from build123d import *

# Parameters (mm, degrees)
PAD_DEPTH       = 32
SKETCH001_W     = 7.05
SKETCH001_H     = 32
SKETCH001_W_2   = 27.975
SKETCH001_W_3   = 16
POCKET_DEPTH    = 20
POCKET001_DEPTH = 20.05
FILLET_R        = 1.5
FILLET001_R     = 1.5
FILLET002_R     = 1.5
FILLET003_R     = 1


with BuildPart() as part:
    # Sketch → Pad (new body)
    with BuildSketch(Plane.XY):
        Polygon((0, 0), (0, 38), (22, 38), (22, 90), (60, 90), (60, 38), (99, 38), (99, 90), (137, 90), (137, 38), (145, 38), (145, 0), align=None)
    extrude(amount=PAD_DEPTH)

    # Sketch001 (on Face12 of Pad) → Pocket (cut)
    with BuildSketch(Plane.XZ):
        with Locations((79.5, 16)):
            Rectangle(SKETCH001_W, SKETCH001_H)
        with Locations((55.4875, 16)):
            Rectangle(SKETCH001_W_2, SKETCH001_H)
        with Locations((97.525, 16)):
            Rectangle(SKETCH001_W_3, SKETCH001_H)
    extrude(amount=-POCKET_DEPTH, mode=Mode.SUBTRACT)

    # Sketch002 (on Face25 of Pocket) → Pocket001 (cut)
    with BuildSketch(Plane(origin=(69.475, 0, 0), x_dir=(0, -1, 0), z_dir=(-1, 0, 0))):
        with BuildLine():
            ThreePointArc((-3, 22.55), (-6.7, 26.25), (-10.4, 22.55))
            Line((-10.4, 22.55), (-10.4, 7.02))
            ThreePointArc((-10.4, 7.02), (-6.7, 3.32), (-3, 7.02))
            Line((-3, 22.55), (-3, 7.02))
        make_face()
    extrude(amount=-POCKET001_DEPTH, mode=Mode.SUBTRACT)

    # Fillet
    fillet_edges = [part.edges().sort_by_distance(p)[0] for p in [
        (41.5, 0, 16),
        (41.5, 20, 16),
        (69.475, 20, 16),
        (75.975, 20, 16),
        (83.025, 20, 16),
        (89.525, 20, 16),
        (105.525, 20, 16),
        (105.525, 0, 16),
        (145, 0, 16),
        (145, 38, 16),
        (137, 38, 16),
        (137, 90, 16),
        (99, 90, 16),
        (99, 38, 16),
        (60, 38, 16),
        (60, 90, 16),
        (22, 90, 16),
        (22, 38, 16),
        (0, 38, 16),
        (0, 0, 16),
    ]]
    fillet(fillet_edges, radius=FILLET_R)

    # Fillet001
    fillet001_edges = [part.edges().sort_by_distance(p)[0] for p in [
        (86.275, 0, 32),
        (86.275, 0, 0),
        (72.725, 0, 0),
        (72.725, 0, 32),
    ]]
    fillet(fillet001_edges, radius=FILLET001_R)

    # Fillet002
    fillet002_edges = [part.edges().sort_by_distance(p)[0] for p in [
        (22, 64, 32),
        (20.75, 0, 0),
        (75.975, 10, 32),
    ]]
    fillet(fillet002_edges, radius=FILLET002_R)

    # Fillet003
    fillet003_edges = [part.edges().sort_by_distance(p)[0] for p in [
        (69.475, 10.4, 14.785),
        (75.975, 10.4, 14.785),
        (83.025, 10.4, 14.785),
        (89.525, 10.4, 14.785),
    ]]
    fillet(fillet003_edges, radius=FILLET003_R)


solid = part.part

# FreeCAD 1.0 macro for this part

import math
import FreeCAD as App
import Part
import Sketcher

V = App.Vector


def edges_at(feature, points):
    """Names of the edges that pass closest to the given points."""
    edges = feature.Shape.Edges
    near = lambda p: min(range(len(edges)), key=lambda i: edges[i].distToShape(Part.Vertex(*p))[0])
    return sorted({f"Edge{near(p) + 1}" for p in points})

doc = App.newDocument("Part")
body = doc.addObject("PartDesign::Body", "Body")

sketch1 = doc.addObject("Sketcher::SketchObject", "Sketch")
body.addObject(sketch1)
sketch1.AttachmentSupport = (doc.XY_Plane, [""])
sketch1.MapMode = "FlatFace"
sketch1.addGeometry(Part.LineSegment(V(0, 38, 0), V(0, 0, 0)), False)
sketch1.addGeometry(Part.LineSegment(V(0, 0, 0), V(145, 0, 0)), False)
sketch1.addGeometry(Part.LineSegment(V(145, 0, 0), V(145, 38, 0)), False)
sketch1.addGeometry(Part.LineSegment(V(145, 38, 0), V(137, 38, 0)), False)
sketch1.addGeometry(Part.LineSegment(V(137, 38, 0), V(137, 90, 0)), False)
sketch1.addGeometry(Part.LineSegment(V(137, 90, 0), V(99, 90, 0)), False)
sketch1.addGeometry(Part.LineSegment(V(99, 90, 0), V(99, 38, 0)), False)
sketch1.addGeometry(Part.LineSegment(V(99, 38, 0), V(60, 38, 0)), False)
sketch1.addGeometry(Part.LineSegment(V(60, 38, 0), V(60, 90, 0)), False)
sketch1.addGeometry(Part.LineSegment(V(60, 90, 0), V(22, 90, 0)), False)
sketch1.addGeometry(Part.LineSegment(V(22, 90, 0), V(22, 38, 0)), False)
sketch1.addGeometry(Part.LineSegment(V(22, 38, 0), V(0, 38, 0)), False)
sketch1.addConstraint(Sketcher.Constraint("Coincident", 0, 2, 1, 1))
sketch1.addConstraint(Sketcher.Constraint("Coincident", 1, 2, 2, 1))
sketch1.addConstraint(Sketcher.Constraint("Coincident", 2, 2, 3, 1))
sketch1.addConstraint(Sketcher.Constraint("Coincident", 3, 2, 4, 1))
sketch1.addConstraint(Sketcher.Constraint("Coincident", 4, 2, 5, 1))
sketch1.addConstraint(Sketcher.Constraint("Coincident", 5, 2, 6, 1))
sketch1.addConstraint(Sketcher.Constraint("Coincident", 6, 2, 7, 1))
sketch1.addConstraint(Sketcher.Constraint("Coincident", 7, 2, 8, 1))
sketch1.addConstraint(Sketcher.Constraint("Coincident", 8, 2, 9, 1))
sketch1.addConstraint(Sketcher.Constraint("Coincident", 9, 2, 10, 1))
sketch1.addConstraint(Sketcher.Constraint("Coincident", 10, 2, 11, 1))
sketch1.addConstraint(Sketcher.Constraint("Coincident", 11, 2, 0, 1))
sketch1.addConstraint(Sketcher.Constraint("Vertical", 0))
sketch1.addConstraint(Sketcher.Constraint("Horizontal", 1))
sketch1.addConstraint(Sketcher.Constraint("Vertical", 2))
sketch1.addConstraint(Sketcher.Constraint("Horizontal", 3))
sketch1.addConstraint(Sketcher.Constraint("Vertical", 4))
sketch1.addConstraint(Sketcher.Constraint("Horizontal", 5))
sketch1.addConstraint(Sketcher.Constraint("Vertical", 6))
sketch1.addConstraint(Sketcher.Constraint("Horizontal", 7))
sketch1.addConstraint(Sketcher.Constraint("Vertical", 8))
sketch1.addConstraint(Sketcher.Constraint("Horizontal", 9))
sketch1.addConstraint(Sketcher.Constraint("Vertical", 10))
sketch1.addConstraint(Sketcher.Constraint("Horizontal", 11))
sketch1.addConstraint(Sketcher.Constraint("Coincident", 0, 2, -1, 1))
sketch1.addConstraint(Sketcher.Constraint("Horizontal", 3, 2, 6, 2))
sketch1.addConstraint(Sketcher.Constraint("Horizontal", 5, 2, 8, 2))
sketch1.addConstraint(Sketcher.Constraint("Horizontal", 7, 2, 10, 2))
sketch1.addConstraint(Sketcher.Constraint("Equal", 5, 9))
sketch1.addConstraint(Sketcher.Constraint("Equal", 9, 0))
sketch1.addConstraint(Sketcher.Constraint("DistanceX", 1, 1, 1, 2, 145.0))
sketch1.addConstraint(Sketcher.Constraint("DistanceX", 3, 2, 3, 1, 8.0))
sketch1.addConstraint(Sketcher.Constraint("DistanceX", 5, 2, 5, 1, 38.0))
sketch1.addConstraint(Sketcher.Constraint("DistanceX", 7, 2, 7, 1, 39.0))
sketch1.addConstraint(Sketcher.Constraint("DistanceY", 4, 1, 4, 2, 52.0))
pad1 = doc.addObject("PartDesign::Pad", "Pad")
body.addObject(pad1)
pad1.Profile = sketch1
pad1.Length = 32

sketch2 = doc.addObject("Sketcher::SketchObject", "Sketch001")
body.addObject(sketch2)
sketch2.AttachmentSupport = (doc.XZ_Plane, [""])
sketch2.MapMode = "FlatFace"
sketch2.addGeometry(Part.LineSegment(V(75.975, 32, 0), V(75.975, 0, 0)), False)
sketch2.addGeometry(Part.LineSegment(V(75.975, 0, 0), V(83.025, 0, 0)), False)
sketch2.addGeometry(Part.LineSegment(V(83.025, 0, 0), V(83.025, 32, 0)), False)
sketch2.addGeometry(Part.LineSegment(V(83.025, 32, 0), V(75.975, 32, 0)), False)
sketch2.addGeometry(Part.LineSegment(V(41.5, 32, 0), V(41.5, 0, 0)), False)
sketch2.addGeometry(Part.LineSegment(V(41.5, 0, 0), V(69.475, 0, 0)), False)
sketch2.addGeometry(Part.LineSegment(V(69.475, 0, 0), V(69.475, 32, 0)), False)
sketch2.addGeometry(Part.LineSegment(V(69.475, 32, 0), V(41.5, 32, 0)), False)
sketch2.addGeometry(Part.LineSegment(V(89.525, 32, 0), V(89.525, 0, 0)), False)
sketch2.addGeometry(Part.LineSegment(V(89.525, 0, 0), V(105.525, 0, 0)), False)
sketch2.addGeometry(Part.LineSegment(V(105.525, 0, 0), V(105.525, 32, 0)), False)
sketch2.addGeometry(Part.LineSegment(V(105.525, 32, 0), V(89.525, 32, 0)), False)
sketch2.addConstraint(Sketcher.Constraint("Coincident", 0, 2, 1, 1))
sketch2.addConstraint(Sketcher.Constraint("Coincident", 1, 2, 2, 1))
sketch2.addConstraint(Sketcher.Constraint("Coincident", 2, 2, 3, 1))
sketch2.addConstraint(Sketcher.Constraint("Coincident", 3, 2, 0, 1))
sketch2.addConstraint(Sketcher.Constraint("Coincident", 4, 2, 5, 1))
sketch2.addConstraint(Sketcher.Constraint("Coincident", 5, 2, 6, 1))
sketch2.addConstraint(Sketcher.Constraint("Coincident", 6, 2, 7, 1))
sketch2.addConstraint(Sketcher.Constraint("Coincident", 7, 2, 4, 1))
sketch2.addConstraint(Sketcher.Constraint("Coincident", 8, 2, 9, 1))
sketch2.addConstraint(Sketcher.Constraint("Coincident", 9, 2, 10, 1))
sketch2.addConstraint(Sketcher.Constraint("Coincident", 10, 2, 11, 1))
sketch2.addConstraint(Sketcher.Constraint("Coincident", 11, 2, 8, 1))
sketch2.addConstraint(Sketcher.Constraint("Vertical", 0))
sketch2.addConstraint(Sketcher.Constraint("Horizontal", 1))
sketch2.addConstraint(Sketcher.Constraint("Vertical", 2))
sketch2.addConstraint(Sketcher.Constraint("Horizontal", 3))
sketch2.addConstraint(Sketcher.Constraint("Vertical", 4))
sketch2.addConstraint(Sketcher.Constraint("Horizontal", 5))
sketch2.addConstraint(Sketcher.Constraint("Vertical", 6))
sketch2.addConstraint(Sketcher.Constraint("Horizontal", 7))
sketch2.addConstraint(Sketcher.Constraint("Vertical", 8))
sketch2.addConstraint(Sketcher.Constraint("Horizontal", 9))
sketch2.addConstraint(Sketcher.Constraint("Vertical", 10))
sketch2.addConstraint(Sketcher.Constraint("Horizontal", 11))
sketch2.addConstraint(Sketcher.Constraint("PointOnObject", 0, 2, -1))
sketch2.addConstraint(Sketcher.Constraint("PointOnObject", 4, 2, -1))
sketch2.addConstraint(Sketcher.Constraint("PointOnObject", 8, 2, -1))
sketch2.addConstraint(Sketcher.Constraint("Horizontal", 3, 2, 6, 2))
sketch2.addConstraint(Sketcher.Constraint("Horizontal", 7, 2, 10, 2))
sketch2.addConstraint(Sketcher.Constraint("DistanceX", 9, 1, 9, 2, 16.0))
sketch2.addConstraint(Sketcher.Constraint("DistanceY", 0, 2, 0, 1, 32.0))
sketch2.addConstraint(Sketcher.Constraint("DistanceX", 1, 1, 1, 2, 7.05))
sketch2.addConstraint(Sketcher.Constraint("DistanceX", -1, 1, 4, 2, 41.5))
sketch2.addConstraint(Sketcher.Constraint("DistanceX", 5, 2, 0, 2, 6.5))
sketch2.addConstraint(Sketcher.Constraint("DistanceX", 1, 2, 8, 2, 6.5))
sketch2.addConstraint(Sketcher.Constraint("DistanceX", 5, 1, 5, 2, 27.975))
pocket1 = doc.addObject("PartDesign::Pocket", "Pocket")
body.addObject(pocket1)
pocket1.Profile = sketch2
pocket1.Length = 20

sketch3 = doc.addObject("Sketcher::SketchObject", "Sketch002")
body.addObject(sketch3)
sketch3.AttachmentSupport = (doc.YZ_Plane, [""])
sketch3.MapMode = "FlatFace"
sketch3.AttachmentOffset = App.Placement(V(0, 0, 69.475), App.Rotation())
sketch3.addGeometry(Part.ArcOfCircle(Part.Circle(V(6.7, 22.55, 0), V(0, 0, 1), 3.7), math.radians(0), math.radians(180)), False)
sketch3.addGeometry(Part.LineSegment(V(10.4, 22.55, 0), V(10.4, 7.02, 0)), False)
sketch3.addGeometry(Part.ArcOfCircle(Part.Circle(V(6.7, 7.02, 0), V(0, 0, 1), 3.7), math.radians(180), math.radians(360)), False)
sketch3.addGeometry(Part.LineSegment(V(3, 7.02, 0), V(3, 22.55, 0)), False)
sketch3.addConstraint(Sketcher.Constraint("Tangent", 0, 1, 1, 1))
sketch3.addConstraint(Sketcher.Constraint("Tangent", 1, 2, 2, 2))
sketch3.addConstraint(Sketcher.Constraint("Tangent", 2, 1, 3, 1))
sketch3.addConstraint(Sketcher.Constraint("Tangent", 3, 2, 0, 2))
sketch3.addConstraint(Sketcher.Constraint("Vertical", 1))
sketch3.addConstraint(Sketcher.Constraint("Vertical", 3))
sketch3.addConstraint(Sketcher.Constraint("Radius", 0, 3.7))
sketch3.addConstraint(Sketcher.Constraint("DistanceX", -1, 1, 2, 1, 3.0))
sketch3.addConstraint(Sketcher.Constraint("DistanceY", 1, 2, 1, 1, 15.53))
sketch3.addConstraint(Sketcher.Constraint("DistanceY", -1, 1, 0, 3, 22.55))
pocket2 = doc.addObject("PartDesign::Pocket", "Pocket001")
body.addObject(pocket2)
pocket2.Profile = sketch3
pocket2.Length = 20.05
pocket2.Reversed = True
doc.recompute()

fillet = doc.addObject("PartDesign::Fillet", "Fillet")
body.addObject(fillet)
fillet.Base = (pocket2, edges_at(pocket2, [
    (41.5, 0, 16),
    (41.5, 20, 16),
    (69.475, 20, 16),
    (75.975, 20, 16),
    (83.025, 20, 16),
    (89.525, 20, 16),
    (105.525, 20, 16),
    (105.525, 0, 16),
    (145, 0, 16),
    (145, 38, 16),
    (137, 38, 16),
    (137, 90, 16),
    (99, 90, 16),
    (99, 38, 16),
    (60, 38, 16),
    (60, 90, 16),
    (22, 90, 16),
    (22, 38, 16),
    (0, 38, 16),
    (0, 0, 16),
]))
fillet.Radius = 1.5
doc.recompute()

fillet2 = doc.addObject("PartDesign::Fillet", "Fillet001")
body.addObject(fillet2)
fillet2.Base = (fillet, edges_at(fillet, [
    (86.275, 0, 32),
    (86.275, 0, 0),
    (72.725, 0, 0),
    (72.725, 0, 32),
]))
fillet2.Radius = 1.5
doc.recompute()

fillet3 = doc.addObject("PartDesign::Fillet", "Fillet002")
body.addObject(fillet3)
fillet3.Base = (fillet2, edges_at(fillet2, [(22, 64, 32), (20.75, 0, 0), (75.975, 10, 32)]))
fillet3.Radius = 1.5
doc.recompute()

fillet4 = doc.addObject("PartDesign::Fillet", "Fillet003")
body.addObject(fillet4)
fillet4.Base = (fillet3, edges_at(fillet3, [
    (69.475, 10.4, 14.785),
    (75.975, 10.4, 14.785),
    (83.025, 10.4, 14.785),
    (89.525, 10.4, 14.785),
]))
fillet4.Radius = 1

doc.recompute()
